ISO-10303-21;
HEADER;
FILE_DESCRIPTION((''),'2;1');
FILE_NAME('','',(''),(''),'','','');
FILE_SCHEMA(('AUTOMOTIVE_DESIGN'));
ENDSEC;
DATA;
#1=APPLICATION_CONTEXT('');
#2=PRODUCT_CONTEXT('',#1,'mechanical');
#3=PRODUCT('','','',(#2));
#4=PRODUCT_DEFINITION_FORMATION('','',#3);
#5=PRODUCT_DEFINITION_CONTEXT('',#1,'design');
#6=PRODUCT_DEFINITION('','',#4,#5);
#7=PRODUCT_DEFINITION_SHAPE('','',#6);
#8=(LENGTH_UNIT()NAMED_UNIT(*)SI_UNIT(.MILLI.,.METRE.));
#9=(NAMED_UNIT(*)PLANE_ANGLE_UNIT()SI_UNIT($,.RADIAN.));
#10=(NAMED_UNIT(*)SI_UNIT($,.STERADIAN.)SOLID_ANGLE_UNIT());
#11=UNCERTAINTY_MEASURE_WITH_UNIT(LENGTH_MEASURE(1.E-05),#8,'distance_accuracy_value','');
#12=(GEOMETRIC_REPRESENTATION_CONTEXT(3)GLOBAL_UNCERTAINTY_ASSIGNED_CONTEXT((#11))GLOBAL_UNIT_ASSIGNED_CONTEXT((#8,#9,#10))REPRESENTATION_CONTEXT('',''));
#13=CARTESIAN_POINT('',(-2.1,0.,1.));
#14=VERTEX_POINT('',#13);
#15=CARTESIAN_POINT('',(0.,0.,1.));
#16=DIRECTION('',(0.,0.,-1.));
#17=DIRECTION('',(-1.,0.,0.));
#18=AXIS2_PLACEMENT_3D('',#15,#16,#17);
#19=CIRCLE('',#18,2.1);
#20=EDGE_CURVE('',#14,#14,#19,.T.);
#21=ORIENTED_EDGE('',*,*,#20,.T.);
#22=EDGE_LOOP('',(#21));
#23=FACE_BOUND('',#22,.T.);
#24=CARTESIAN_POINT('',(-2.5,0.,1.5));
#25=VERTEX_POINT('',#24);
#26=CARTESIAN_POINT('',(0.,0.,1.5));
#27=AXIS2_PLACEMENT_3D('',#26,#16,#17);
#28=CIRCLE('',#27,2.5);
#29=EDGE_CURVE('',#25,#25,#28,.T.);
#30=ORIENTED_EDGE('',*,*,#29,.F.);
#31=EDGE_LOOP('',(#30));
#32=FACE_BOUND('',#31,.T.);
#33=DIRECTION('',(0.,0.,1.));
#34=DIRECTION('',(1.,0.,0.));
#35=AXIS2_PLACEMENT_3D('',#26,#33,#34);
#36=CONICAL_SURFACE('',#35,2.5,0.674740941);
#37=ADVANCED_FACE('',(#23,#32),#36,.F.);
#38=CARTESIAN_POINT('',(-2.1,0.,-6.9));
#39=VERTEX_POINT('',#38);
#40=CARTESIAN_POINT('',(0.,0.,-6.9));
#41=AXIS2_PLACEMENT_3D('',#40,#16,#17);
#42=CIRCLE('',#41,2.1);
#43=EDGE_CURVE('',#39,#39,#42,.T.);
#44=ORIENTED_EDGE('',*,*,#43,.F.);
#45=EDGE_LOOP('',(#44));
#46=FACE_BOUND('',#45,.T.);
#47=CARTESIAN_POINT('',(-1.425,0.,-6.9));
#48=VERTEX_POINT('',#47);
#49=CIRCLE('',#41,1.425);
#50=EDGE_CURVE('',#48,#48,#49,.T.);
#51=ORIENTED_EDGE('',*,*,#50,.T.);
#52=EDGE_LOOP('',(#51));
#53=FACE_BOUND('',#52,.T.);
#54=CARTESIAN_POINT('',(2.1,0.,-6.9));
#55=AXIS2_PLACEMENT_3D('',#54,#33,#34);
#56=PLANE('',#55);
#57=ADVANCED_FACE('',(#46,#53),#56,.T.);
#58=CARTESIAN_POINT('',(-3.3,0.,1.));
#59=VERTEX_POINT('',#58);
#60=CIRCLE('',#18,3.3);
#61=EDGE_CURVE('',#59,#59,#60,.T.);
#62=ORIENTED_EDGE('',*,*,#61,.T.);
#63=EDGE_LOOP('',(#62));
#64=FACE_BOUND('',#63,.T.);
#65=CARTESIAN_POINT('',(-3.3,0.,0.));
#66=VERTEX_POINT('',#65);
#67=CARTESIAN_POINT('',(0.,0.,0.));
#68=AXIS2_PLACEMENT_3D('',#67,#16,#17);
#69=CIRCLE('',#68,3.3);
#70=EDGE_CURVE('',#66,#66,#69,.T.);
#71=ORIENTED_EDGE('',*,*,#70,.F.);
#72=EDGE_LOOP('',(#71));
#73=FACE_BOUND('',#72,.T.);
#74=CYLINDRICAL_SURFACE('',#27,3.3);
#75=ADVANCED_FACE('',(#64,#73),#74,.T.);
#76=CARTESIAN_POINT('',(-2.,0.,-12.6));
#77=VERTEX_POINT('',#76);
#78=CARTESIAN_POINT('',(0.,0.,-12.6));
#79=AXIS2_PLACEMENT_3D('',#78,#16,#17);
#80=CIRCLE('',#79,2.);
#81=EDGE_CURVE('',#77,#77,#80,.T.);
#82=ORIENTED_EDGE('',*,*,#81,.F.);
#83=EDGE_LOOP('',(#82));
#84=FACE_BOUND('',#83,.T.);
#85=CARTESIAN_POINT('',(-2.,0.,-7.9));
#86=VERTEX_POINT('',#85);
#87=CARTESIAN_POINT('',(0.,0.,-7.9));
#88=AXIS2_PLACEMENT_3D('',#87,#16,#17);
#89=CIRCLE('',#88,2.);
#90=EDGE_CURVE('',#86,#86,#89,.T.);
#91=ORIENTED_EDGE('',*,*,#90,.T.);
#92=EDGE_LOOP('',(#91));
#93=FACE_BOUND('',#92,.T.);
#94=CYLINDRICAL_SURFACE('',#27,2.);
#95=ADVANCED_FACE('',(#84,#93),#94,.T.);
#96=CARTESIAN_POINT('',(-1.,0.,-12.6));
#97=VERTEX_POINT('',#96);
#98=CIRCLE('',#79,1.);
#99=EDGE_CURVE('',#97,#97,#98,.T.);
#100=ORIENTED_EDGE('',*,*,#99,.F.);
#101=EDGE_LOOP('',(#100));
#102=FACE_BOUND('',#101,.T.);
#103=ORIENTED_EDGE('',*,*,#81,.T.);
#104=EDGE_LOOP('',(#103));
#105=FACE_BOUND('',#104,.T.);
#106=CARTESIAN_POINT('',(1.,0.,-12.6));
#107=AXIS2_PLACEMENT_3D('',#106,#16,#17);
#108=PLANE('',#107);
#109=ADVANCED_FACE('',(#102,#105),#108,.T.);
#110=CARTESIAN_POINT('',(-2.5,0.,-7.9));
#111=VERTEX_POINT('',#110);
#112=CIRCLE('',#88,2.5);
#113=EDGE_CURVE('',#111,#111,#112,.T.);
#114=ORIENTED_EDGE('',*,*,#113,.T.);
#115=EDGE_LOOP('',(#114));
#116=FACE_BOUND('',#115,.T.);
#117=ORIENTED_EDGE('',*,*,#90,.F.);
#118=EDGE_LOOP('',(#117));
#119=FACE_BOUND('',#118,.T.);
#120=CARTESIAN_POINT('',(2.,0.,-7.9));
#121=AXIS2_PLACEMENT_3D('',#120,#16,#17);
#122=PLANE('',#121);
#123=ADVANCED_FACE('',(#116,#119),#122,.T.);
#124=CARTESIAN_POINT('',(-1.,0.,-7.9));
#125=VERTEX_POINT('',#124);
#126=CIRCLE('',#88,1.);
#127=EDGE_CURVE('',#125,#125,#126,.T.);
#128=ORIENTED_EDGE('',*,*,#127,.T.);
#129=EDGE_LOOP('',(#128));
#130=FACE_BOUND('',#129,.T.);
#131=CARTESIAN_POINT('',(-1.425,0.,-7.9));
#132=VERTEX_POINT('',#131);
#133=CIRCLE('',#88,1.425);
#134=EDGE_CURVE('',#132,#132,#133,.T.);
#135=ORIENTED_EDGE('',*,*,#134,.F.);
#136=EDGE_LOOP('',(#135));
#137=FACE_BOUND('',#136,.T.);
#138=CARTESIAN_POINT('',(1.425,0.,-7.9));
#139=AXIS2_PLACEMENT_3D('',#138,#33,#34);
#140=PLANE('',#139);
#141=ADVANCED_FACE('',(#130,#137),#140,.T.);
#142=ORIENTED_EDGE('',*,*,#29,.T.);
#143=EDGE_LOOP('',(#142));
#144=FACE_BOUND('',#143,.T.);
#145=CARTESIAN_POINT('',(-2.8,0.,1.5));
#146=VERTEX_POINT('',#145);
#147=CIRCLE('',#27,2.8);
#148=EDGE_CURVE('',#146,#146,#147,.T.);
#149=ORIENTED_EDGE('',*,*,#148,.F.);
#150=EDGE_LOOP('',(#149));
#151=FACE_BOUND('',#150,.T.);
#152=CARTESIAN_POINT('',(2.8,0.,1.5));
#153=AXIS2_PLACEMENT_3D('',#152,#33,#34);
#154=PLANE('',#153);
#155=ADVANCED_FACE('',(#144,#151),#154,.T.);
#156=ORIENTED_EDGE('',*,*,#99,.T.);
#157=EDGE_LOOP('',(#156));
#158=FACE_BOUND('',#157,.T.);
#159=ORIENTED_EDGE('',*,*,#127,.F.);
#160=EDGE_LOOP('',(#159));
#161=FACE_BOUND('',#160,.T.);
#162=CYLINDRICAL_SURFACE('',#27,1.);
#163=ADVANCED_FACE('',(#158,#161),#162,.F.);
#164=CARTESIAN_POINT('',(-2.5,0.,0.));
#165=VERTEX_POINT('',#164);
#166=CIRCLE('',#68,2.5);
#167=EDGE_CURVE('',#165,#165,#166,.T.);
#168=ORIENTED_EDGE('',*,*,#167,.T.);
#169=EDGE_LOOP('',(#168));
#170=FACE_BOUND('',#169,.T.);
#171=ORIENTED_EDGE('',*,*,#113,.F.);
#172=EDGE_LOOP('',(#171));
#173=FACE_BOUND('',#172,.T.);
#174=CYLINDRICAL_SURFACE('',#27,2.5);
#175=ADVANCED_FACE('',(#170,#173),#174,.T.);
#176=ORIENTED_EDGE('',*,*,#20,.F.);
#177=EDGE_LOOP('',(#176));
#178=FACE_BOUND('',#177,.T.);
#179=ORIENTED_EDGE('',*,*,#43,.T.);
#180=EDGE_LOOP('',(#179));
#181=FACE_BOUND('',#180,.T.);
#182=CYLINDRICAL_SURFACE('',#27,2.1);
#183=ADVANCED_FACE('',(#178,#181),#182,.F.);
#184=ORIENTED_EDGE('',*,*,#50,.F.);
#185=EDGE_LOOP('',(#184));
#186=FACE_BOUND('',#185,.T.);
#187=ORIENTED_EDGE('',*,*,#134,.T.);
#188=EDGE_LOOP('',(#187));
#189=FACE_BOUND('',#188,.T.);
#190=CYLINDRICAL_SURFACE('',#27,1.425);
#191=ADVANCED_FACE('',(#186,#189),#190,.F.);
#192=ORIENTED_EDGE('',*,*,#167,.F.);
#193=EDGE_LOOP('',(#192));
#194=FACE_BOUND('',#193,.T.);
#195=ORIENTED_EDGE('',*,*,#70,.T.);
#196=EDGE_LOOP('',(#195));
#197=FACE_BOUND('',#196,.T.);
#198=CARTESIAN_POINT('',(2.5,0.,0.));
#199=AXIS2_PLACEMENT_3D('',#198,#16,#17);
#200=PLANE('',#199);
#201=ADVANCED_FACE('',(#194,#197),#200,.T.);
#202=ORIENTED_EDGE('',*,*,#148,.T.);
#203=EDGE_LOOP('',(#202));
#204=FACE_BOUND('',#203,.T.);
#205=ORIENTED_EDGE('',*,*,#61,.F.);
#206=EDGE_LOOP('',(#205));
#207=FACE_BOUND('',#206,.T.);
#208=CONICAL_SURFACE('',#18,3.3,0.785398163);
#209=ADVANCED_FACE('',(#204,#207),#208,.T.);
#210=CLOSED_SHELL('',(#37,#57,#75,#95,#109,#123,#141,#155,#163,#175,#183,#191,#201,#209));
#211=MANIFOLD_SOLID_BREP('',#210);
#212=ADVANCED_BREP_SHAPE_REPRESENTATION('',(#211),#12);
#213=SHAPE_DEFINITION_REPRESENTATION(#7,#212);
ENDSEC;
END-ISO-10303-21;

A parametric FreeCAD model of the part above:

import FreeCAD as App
import Part
import Sketcher
Q = App.Units.Quantity


def add_polygon(sketch, points):
    """Adds a closed chain of lines whose ends are joined by coincident constraints."""
    first, n = sketch.GeometryCount, len(points)
    for a, b in zip(points, points[1:] + points[:1]):
        sketch.addGeometry(Part.LineSegment(App.Vector(*a, 0), App.Vector(*b, 0)), False)
    for i in range(n):
        sketch.addConstraint(Sketcher.Constraint("Coincident", first + i, 2, first + (i + 1) % n, 1))

doc = App.newDocument("Part")
body = doc.addObject("PartDesign::Body", "Body")

sketch1 = body.newObject("Sketcher::SketchObject", "Sketch")
sketch1.AttachmentSupport = (doc.getObject("XZ_Plane"), [""])
sketch1.MapMode = "FlatFace"
add_polygon(sketch1, [(2.1, -6.9), (1.43, -6.9), (1.43, -7.9), (1, -7.9), (1, -12.6), (2, -12.6), (2, -7.9), (2.5, -7.9), (2.5, 0), (3.3, 0), (3.3, 1), (2.8, 1.5), (2.5, 1.5), (2.1, 1)])
sketch1.addConstraint(Sketcher.Constraint("Horizontal", 0))
sketch1.addConstraint(Sketcher.Constraint("Vertical", 1))
sketch1.addConstraint(Sketcher.Constraint("Horizontal", 2))
sketch1.addConstraint(Sketcher.Constraint("Vertical", 3))
sketch1.addConstraint(Sketcher.Constraint("Horizontal", 4))
sketch1.addConstraint(Sketcher.Constraint("Vertical", 5))
sketch1.addConstraint(Sketcher.Constraint("Horizontal", 6))
sketch1.addConstraint(Sketcher.Constraint("Vertical", 7))
sketch1.addConstraint(Sketcher.Constraint("Horizontal", 8))
sketch1.addConstraint(Sketcher.Constraint("Vertical", 9))
sketch1.addConstraint(Sketcher.Constraint("Horizontal", 11))
sketch1.addConstraint(Sketcher.Constraint("Vertical", 13))
sketch1.addConstraint(Sketcher.Constraint("PointOnObject", 7, 2, -1))
sketch1.addConstraint(Sketcher.Constraint("Horizontal", 2, 2, 5, 2))
sketch1.addConstraint(Sketcher.Constraint("Horizontal", 9, 2, 12, 2))
sketch1.addConstraint(Sketcher.Constraint("Vertical", 7, 2, 11, 2))
sketch1.addConstraint(Sketcher.Constraint("Equal", 4, 1))
sketch1.addConstraint(Sketcher.Constraint("Equal", 1, 9))
sketch1.addConstraint(Sketcher.Constraint("DistanceX", 4, 1, 4, 2, Q("1 mm")))
sketch1.addConstraint(Sketcher.Constraint("Angle", 10, Q("135 deg")))
sketch1.addConstraint(Sketcher.Constraint("DistanceX", 6, 1, 6, 2, Q("0.5 mm")))
sketch1.addConstraint(Sketcher.Constraint("DistanceX", 8, 1, 8, 2, Q("0.8 mm")))
sketch1.addConstraint(Sketcher.Constraint("DistanceX", 11, 2, 11, 1, Q("0.3 mm")))
sketch1.addConstraint(Sketcher.Constraint("DistanceY", 3, 2, 3, 1, Q("4.7 mm")))
sketch1.addConstraint(Sketcher.Constraint("DistanceY", 7, 1, 7, 2, Q("7.9 mm")))
sketch1.addConstraint(Sketcher.Constraint("DistanceX", -1, 1, 2, 2, Q("1 mm")))
sketch1.addConstraint(Sketcher.Constraint("DistanceX", -1, 1, 12, 2, Q("2.1 mm")))
sketch1.addConstraint(Sketcher.Constraint("DistanceX", 0, 2, 0, 1, Q("0.675 mm")))
revolution = body.newObject("PartDesign::Revolution", "Revolution")
revolution.Profile = sketch1
revolution.ReferenceAxis = (sketch1, ["V_Axis"])
revolution.Angle = 360

doc.recompute()
